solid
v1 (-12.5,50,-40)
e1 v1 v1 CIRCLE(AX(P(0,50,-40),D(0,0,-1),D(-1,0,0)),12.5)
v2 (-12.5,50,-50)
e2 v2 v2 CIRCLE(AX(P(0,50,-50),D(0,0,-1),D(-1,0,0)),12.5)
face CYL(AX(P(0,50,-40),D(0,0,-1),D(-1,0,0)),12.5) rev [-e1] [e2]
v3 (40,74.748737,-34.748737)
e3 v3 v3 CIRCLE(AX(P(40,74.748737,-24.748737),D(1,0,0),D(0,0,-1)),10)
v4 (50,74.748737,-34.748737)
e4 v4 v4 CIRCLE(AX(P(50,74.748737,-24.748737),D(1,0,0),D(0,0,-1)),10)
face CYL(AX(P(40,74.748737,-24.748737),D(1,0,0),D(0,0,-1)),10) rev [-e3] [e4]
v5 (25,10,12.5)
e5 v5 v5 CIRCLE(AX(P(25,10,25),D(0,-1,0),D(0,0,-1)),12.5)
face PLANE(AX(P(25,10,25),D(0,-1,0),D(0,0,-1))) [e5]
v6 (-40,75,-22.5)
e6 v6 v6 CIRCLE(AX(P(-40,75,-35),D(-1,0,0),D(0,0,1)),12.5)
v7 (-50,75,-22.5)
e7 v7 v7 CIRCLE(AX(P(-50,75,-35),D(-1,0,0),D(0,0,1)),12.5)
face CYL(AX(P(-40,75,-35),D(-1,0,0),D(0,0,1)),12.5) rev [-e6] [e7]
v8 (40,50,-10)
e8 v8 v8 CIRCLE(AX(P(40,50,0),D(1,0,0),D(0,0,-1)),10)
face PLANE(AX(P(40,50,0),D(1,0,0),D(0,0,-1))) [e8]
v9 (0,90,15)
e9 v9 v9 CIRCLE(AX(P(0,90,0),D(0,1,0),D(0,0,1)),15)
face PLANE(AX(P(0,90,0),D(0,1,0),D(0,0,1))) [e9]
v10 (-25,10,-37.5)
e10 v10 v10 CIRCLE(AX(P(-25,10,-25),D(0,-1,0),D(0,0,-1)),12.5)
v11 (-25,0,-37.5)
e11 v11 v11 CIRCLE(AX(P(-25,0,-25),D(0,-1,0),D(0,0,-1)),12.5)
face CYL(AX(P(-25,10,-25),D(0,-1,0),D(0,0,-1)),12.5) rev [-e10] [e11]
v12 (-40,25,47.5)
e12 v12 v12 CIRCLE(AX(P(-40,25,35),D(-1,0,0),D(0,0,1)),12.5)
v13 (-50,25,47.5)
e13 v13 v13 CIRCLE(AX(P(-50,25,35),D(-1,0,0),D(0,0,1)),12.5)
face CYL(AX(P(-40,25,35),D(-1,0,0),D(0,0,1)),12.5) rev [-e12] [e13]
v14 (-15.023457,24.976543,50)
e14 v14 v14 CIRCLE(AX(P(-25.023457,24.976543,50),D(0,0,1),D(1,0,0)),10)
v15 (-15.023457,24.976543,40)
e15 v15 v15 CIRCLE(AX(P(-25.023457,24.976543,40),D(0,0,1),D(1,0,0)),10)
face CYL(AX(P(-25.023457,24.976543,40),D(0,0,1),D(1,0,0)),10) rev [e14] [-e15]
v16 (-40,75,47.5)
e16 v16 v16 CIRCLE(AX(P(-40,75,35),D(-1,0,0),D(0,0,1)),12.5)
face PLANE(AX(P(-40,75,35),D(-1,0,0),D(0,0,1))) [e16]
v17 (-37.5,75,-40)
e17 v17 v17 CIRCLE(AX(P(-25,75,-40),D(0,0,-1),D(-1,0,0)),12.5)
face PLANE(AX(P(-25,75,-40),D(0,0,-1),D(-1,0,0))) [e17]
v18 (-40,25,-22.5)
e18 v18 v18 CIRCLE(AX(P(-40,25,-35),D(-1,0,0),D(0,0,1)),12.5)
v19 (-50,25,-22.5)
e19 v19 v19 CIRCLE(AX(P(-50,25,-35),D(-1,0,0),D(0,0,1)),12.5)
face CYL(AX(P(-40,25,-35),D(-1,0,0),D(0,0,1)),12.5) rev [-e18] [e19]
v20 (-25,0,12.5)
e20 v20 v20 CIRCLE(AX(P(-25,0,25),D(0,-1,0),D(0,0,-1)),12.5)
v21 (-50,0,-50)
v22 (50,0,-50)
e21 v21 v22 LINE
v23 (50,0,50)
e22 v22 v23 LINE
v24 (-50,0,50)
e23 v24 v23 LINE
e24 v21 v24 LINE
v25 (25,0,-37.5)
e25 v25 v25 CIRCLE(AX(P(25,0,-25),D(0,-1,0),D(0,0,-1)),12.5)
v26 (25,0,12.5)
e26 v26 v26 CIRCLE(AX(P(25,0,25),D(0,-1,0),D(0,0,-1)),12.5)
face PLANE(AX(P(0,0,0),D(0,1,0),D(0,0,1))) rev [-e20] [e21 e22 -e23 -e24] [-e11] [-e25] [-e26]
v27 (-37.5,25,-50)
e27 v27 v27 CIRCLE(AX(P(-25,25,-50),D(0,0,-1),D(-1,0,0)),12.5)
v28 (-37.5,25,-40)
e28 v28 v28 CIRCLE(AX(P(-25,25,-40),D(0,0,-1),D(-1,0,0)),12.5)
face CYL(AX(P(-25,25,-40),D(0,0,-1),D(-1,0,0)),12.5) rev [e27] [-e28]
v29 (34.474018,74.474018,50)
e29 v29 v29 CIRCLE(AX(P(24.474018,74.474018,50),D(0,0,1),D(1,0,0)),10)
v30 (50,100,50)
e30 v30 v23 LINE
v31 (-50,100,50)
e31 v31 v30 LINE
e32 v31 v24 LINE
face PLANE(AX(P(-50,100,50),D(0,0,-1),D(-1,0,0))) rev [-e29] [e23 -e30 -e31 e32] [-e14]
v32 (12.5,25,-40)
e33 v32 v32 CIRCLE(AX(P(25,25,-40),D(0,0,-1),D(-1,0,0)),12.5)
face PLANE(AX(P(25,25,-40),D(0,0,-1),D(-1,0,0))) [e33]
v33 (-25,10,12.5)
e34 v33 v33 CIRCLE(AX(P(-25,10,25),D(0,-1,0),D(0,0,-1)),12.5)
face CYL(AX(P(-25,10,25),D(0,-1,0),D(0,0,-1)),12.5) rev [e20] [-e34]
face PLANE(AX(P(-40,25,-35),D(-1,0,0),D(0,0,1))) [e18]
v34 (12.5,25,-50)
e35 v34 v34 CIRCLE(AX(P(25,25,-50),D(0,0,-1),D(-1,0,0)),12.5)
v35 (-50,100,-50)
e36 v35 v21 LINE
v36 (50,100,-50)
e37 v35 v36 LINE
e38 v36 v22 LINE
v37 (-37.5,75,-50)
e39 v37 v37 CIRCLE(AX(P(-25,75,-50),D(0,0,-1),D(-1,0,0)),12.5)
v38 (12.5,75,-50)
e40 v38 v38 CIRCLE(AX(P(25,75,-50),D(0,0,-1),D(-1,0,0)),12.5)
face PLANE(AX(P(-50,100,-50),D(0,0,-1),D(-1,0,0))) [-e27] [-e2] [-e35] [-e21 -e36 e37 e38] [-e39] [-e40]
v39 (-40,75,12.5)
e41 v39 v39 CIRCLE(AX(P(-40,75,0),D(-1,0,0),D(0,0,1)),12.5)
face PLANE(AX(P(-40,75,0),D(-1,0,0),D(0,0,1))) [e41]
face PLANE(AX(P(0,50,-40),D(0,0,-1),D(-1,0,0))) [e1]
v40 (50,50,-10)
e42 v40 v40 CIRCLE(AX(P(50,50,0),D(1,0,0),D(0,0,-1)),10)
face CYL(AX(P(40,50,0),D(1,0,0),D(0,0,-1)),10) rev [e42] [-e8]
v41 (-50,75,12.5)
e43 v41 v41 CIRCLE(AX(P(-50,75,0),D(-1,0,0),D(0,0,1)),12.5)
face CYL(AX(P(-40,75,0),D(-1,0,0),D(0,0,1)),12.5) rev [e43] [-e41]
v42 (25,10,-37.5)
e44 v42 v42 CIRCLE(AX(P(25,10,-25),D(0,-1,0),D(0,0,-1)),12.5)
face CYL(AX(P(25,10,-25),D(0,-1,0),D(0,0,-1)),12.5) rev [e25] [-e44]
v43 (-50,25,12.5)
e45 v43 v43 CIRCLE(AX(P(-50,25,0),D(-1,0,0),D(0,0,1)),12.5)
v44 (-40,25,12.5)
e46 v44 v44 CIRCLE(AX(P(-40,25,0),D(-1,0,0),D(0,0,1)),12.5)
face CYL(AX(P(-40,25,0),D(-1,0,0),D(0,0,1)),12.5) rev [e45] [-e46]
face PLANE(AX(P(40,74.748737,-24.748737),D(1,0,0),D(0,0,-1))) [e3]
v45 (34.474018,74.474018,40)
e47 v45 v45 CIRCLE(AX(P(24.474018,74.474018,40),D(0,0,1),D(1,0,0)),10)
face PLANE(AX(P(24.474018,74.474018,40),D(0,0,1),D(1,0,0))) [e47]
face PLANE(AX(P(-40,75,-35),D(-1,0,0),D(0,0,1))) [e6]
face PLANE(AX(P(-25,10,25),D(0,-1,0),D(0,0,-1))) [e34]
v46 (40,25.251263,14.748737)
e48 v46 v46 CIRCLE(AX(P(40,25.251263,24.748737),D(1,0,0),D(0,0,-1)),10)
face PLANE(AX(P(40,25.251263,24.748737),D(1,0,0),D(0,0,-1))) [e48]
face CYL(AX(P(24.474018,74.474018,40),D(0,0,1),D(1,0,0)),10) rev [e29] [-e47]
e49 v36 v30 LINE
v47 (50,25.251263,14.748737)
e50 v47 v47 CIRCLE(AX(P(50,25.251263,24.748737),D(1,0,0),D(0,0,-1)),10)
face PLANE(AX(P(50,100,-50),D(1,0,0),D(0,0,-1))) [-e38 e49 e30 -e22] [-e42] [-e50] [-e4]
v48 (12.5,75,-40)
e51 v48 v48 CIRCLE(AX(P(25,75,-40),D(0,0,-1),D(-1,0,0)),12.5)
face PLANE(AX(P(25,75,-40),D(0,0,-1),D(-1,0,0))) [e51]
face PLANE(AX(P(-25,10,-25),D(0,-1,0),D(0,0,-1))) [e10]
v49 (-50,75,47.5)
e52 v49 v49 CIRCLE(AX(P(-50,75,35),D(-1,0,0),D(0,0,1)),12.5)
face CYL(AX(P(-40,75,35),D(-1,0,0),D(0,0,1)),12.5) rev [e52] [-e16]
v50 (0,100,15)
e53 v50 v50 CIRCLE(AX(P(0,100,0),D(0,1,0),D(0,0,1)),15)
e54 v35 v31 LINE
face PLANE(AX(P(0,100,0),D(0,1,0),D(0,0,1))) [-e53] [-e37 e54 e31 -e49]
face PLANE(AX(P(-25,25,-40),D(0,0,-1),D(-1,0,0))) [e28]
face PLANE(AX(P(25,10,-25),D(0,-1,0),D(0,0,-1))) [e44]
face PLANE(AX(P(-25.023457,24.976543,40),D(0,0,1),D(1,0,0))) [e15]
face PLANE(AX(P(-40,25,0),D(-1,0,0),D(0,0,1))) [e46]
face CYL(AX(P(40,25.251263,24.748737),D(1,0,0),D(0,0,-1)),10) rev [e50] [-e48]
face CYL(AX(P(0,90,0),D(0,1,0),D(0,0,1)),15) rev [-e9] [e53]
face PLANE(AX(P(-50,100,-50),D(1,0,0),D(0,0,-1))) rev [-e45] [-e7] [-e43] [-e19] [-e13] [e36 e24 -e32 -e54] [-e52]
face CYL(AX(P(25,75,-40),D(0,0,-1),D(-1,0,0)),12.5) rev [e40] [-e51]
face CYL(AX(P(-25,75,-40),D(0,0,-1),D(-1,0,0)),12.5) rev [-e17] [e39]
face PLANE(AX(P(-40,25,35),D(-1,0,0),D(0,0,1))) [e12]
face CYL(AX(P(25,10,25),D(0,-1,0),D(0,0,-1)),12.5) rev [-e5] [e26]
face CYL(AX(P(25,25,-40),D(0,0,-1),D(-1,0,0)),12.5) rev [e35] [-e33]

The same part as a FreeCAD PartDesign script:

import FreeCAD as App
import Part
import Sketcher

V = App.Vector

doc = App.newDocument("Part")
body = doc.addObject("PartDesign::Body", "Body")

# Sketch on XZ plane
sketch1 = body.newObject("Sketcher::SketchObject", "Sketch")
sketch1.AttachmentSupport = (doc.getObject("XZ_Plane"), [""])
sketch1.MapMode = "FlatFace"
sketch1.addGeometry([
    Part.LineSegment(V(-50, -50, 0), V(-50, 50, 0)),
    Part.LineSegment(V(-50, 50, 0), V(50, 50, 0)),
    Part.LineSegment(V(50, 50, 0), V(50, -50, 0)),
    Part.LineSegment(V(50, -50, 0), V(-50, -50, 0)),
], False)
sketch1.addConstraint([
    Sketcher.Constraint("Coincident", 0, 2, 1, 1),
    Sketcher.Constraint("Coincident", 1, 2, 2, 1),
    Sketcher.Constraint("Coincident", 2, 2, 3, 1),
    Sketcher.Constraint("Coincident", 3, 2, 0, 1),
    Sketcher.Constraint("Vertical", 0),
    Sketcher.Constraint("Horizontal", 1),
    Sketcher.Constraint("Vertical", 2),
    Sketcher.Constraint("Horizontal", 3),
    Sketcher.Constraint("Symmetric", 0, 2, 2, 2, -1, 1),
    Sketcher.Constraint("Equal", 3, 0),
    Sketcher.Constraint("DistanceX", 1, 1, 1, 2, 100.0),
])
pad1 = body.newObject("PartDesign::Pad", "Pad")
pad1.Profile = sketch1
pad1.Length = 100
pad1.Reversed = True

# Sketch on XZ plane
sketch2 = body.newObject("Sketcher::SketchObject", "Sketch001")
sketch2.AttachmentSupport = (doc.getObject("XZ_Plane"), [""])
sketch2.MapMode = "FlatFace"
sketch2.AttachmentOffset = App.Placement(V(0, 0, -100), App.Rotation())
sketch2.addGeometry(Part.Circle(V(0, 0, 0), V(0, 0, 1), 15), False)
sketch2.addConstraint([
    Sketcher.Constraint("Coincident", 0, 3, -1, 1),
    Sketcher.Constraint("Diameter", 0, 30.0),
])
pocket1 = body.newObject("PartDesign::Pocket", "Pocket")
pocket1.Profile = sketch2
pocket1.Length = 10
pocket1.Reversed = True

# Sketch on YZ plane
sketch3 = body.newObject("Sketcher::SketchObject", "Sketch002")
sketch3.AttachmentSupport = (doc.getObject("YZ_Plane"), [""])
sketch3.MapMode = "FlatFace"
sketch3.AttachmentOffset = App.Placement(V(0, 0, 50), App.Rotation())
sketch3.addGeometry([
    Part.Circle(V(50, 0, 0), V(0, 0, 1), 10),
    Part.Circle(V(74.748737, -24.748737, 0), V(0, 0, 1), 10),
    Part.Circle(V(25.251263, 24.748737, 0), V(0, 0, 1), 10),
], False)
sketch3.addConstraint([
    Sketcher.Constraint("Equal", 0, 1),
    Sketcher.Constraint("Equal", 1, 2),
    Sketcher.Constraint("PointOnObject", 0, 3, -1),
    Sketcher.Constraint("Diameter", 0, 20.0),
    Sketcher.Constraint("DistanceX", -1, 1, 0, 3, 50.0),
    Sketcher.Constraint("DistanceX", -1, 1, 1, 3, 74.748737),
    Sketcher.Constraint("DistanceY", 1, 3, -1, 1, 24.748737),
    Sketcher.Constraint("DistanceX", -1, 1, 2, 3, 25.251263),
    Sketcher.Constraint("DistanceY", -1, 1, 2, 3, 24.748737),
])
pocket2 = body.newObject("PartDesign::Pocket", "Pocket001")
pocket2.Profile = sketch3
pocket2.Length = 10

# Sketch on XY plane
sketch4 = body.newObject("Sketcher::SketchObject", "Sketch003")
sketch4.AttachmentSupport = (doc.getObject("XY_Plane"), [""])
sketch4.MapMode = "FlatFace"
sketch4.AttachmentOffset = App.Placement(V(0, 0, 50), App.Rotation())
sketch4.addGeometry([
    Part.Circle(V(-25.023457, 24.976543, 0), V(0, 0, 1), 10),
    Part.Circle(V(24.474018, 74.474018, 0), V(0, 0, 1), 10),
], False)
sketch4.addConstraint([
    Sketcher.Constraint("Equal", 0, 1),
    Sketcher.Constraint("Diameter", 0, 20.0),
    Sketcher.Constraint("DistanceX", 0, 3, -1, 1, 25.023457),
    Sketcher.Constraint("DistanceY", -1, 1, 0, 3, 24.976543),
    Sketcher.Constraint("DistanceX", -1, 1, 1, 3, 24.474018),
    Sketcher.Constraint("DistanceY", -1, 1, 1, 3, 74.474018),
])
pocket3 = body.newObject("PartDesign::Pocket", "Pocket002")
pocket3.Profile = sketch4
pocket3.Length = 10

# Sketch on XZ plane
sketch5 = body.newObject("Sketcher::SketchObject", "Sketch004")
sketch5.AttachmentSupport = (doc.getObject("XZ_Plane"), [""])
sketch5.MapMode = "FlatFace"
sketch5.addGeometry([
    Part.Circle(V(-25, 25, 0), V(0, 0, 1), 12.5),
    Part.Circle(V(25, 25, 0), V(0, 0, 1), 12.5),
    Part.Circle(V(-25, -25, 0), V(0, 0, 1), 12.5),
    Part.Circle(V(25, -25, 0), V(0, 0, 1), 12.5),
], False)
sketch5.addConstraint([
    Sketcher.Constraint("Equal", 0, 1),
    Sketcher.Constraint("Equal", 1, 2),
    Sketcher.Constraint("Equal", 2, 3),
    Sketcher.Constraint("Symmetric", 1, 3, 2, 3, -1, 1),
    Sketcher.Constraint("Symmetric", 0, 3, 3, 3, -1, 1),
    Sketcher.Constraint("Symmetric", 0, 3, 1, 3, -2),
    Sketcher.Constraint("Diameter", 0, 25.0),
    Sketcher.Constraint("DistanceX", 0, 3, -1, 1, 25.0),
    Sketcher.Constraint("DistanceY", -1, 1, 0, 3, 25.0),
])
pocket4 = body.newObject("PartDesign::Pocket", "Pocket003")
pocket4.Profile = sketch5
pocket4.Length = 10

# Sketch on XY plane
sketch6 = body.newObject("Sketcher::SketchObject", "Sketch005")
sketch6.AttachmentSupport = (doc.getObject("XY_Plane"), [""])
sketch6.MapMode = "FlatFace"
sketch6.AttachmentOffset = App.Placement(V(0, 0, -50), App.Rotation())
sketch6.addGeometry([
    Part.Circle(V(-25, 25, 0), V(0, 0, 1), 12.5),  # 0
    Part.Circle(V(25, 25, 0), V(0, 0, 1), 12.5),  # 1
    Part.Circle(V(-25, 75, 0), V(0, 0, 1), 12.5),  # 2
    Part.Circle(V(25, 75, 0), V(0, 0, 1), 12.5),  # 3
    Part.Circle(V(0, 50, 0), V(0, 0, 1), 12.5),  # 4
], False)
sketch6.addConstraint([
    Sketcher.Constraint("Equal", 0, 1),
    Sketcher.Constraint("Equal", 1, 2),
    Sketcher.Constraint("Equal", 2, 3),
    Sketcher.Constraint("Equal", 3, 4),
    Sketcher.Constraint("Symmetric", 0, 3, 1, 3, -2),
    Sketcher.Constraint("Symmetric", 2, 3, 3, 3, -2),
    Sketcher.Constraint("PointOnObject", 4, 3, -2),
    Sketcher.Constraint("Vertical", 0, 3, 2, 3),
    Sketcher.Constraint("Diameter", 0, 25.0),
    Sketcher.Constraint("DistanceX", 0, 3, -1, 1, 25.0),
    Sketcher.Constraint("DistanceY", -1, 1, 0, 3, 25.0),
    Sketcher.Constraint("DistanceY", -1, 1, 2, 3, 75.0),
    Sketcher.Constraint("DistanceY", -1, 1, 4, 3, 50.0),
])
pocket5 = body.newObject("PartDesign::Pocket", "Pocket004")
pocket5.Profile = sketch6
pocket5.Length = 10
pocket5.Reversed = True

# Sketch on YZ plane
sketch7 = body.newObject("Sketcher::SketchObject", "Sketch006")
sketch7.AttachmentSupport = (doc.getObject("YZ_Plane"), [""])
sketch7.MapMode = "FlatFace"
sketch7.AttachmentOffset = App.Placement(V(0, 0, -50), App.Rotation())
sketch7.addGeometry([
    Part.Circle(V(75, -35, 0), V(0, 0, 1), 12.5),  # 0
    Part.Circle(V(75, 0, 0), V(0, 0, 1), 12.5),  # 1
    Part.Circle(V(75, 35, 0), V(0, 0, 1), 12.5),  # 2
    Part.Circle(V(25, -35, 0), V(0, 0, 1), 12.5),  # 3
    Part.Circle(V(25, 0, 0), V(0, 0, 1), 12.5),  # 4
    Part.Circle(V(25, 35, 0), V(0, 0, 1), 12.5),  # 5
], False)
sketch7.addConstraint([
    Sketcher.Constraint("Equal", 0, 1),
    Sketcher.Constraint("Equal", 1, 2),
    Sketcher.Constraint("Equal", 2, 3),
    Sketcher.Constraint("Equal", 3, 4),
    Sketcher.Constraint("Equal", 4, 5),
    Sketcher.Constraint("Symmetric", 0, 3, 2, 3, -1),
    Sketcher.Constraint("Symmetric", 3, 3, 5, 3, -1),
    Sketcher.Constraint("PointOnObject", 1, 3, -1),
    Sketcher.Constraint("PointOnObject", 4, 3, -1),
    Sketcher.Constraint("Horizontal", 0, 3, 3, 3),
    Sketcher.Constraint("Vertical", 0, 3, 1, 3),
    Sketcher.Constraint("Vertical", 3, 3, 4, 3),
    Sketcher.Constraint("Diameter", 0, 25.0),
    Sketcher.Constraint("DistanceX", -1, 1, 0, 3, 75.0),
    Sketcher.Constraint("DistanceY", 0, 3, -1, 1, 35.0),
    Sketcher.Constraint("DistanceX", -1, 1, 3, 3, 25.0),
])
pocket6 = body.newObject("PartDesign::Pocket", "Pocket005")
pocket6.Profile = sketch7
pocket6.Length = 10
pocket6.Reversed = True

doc.recompute()
